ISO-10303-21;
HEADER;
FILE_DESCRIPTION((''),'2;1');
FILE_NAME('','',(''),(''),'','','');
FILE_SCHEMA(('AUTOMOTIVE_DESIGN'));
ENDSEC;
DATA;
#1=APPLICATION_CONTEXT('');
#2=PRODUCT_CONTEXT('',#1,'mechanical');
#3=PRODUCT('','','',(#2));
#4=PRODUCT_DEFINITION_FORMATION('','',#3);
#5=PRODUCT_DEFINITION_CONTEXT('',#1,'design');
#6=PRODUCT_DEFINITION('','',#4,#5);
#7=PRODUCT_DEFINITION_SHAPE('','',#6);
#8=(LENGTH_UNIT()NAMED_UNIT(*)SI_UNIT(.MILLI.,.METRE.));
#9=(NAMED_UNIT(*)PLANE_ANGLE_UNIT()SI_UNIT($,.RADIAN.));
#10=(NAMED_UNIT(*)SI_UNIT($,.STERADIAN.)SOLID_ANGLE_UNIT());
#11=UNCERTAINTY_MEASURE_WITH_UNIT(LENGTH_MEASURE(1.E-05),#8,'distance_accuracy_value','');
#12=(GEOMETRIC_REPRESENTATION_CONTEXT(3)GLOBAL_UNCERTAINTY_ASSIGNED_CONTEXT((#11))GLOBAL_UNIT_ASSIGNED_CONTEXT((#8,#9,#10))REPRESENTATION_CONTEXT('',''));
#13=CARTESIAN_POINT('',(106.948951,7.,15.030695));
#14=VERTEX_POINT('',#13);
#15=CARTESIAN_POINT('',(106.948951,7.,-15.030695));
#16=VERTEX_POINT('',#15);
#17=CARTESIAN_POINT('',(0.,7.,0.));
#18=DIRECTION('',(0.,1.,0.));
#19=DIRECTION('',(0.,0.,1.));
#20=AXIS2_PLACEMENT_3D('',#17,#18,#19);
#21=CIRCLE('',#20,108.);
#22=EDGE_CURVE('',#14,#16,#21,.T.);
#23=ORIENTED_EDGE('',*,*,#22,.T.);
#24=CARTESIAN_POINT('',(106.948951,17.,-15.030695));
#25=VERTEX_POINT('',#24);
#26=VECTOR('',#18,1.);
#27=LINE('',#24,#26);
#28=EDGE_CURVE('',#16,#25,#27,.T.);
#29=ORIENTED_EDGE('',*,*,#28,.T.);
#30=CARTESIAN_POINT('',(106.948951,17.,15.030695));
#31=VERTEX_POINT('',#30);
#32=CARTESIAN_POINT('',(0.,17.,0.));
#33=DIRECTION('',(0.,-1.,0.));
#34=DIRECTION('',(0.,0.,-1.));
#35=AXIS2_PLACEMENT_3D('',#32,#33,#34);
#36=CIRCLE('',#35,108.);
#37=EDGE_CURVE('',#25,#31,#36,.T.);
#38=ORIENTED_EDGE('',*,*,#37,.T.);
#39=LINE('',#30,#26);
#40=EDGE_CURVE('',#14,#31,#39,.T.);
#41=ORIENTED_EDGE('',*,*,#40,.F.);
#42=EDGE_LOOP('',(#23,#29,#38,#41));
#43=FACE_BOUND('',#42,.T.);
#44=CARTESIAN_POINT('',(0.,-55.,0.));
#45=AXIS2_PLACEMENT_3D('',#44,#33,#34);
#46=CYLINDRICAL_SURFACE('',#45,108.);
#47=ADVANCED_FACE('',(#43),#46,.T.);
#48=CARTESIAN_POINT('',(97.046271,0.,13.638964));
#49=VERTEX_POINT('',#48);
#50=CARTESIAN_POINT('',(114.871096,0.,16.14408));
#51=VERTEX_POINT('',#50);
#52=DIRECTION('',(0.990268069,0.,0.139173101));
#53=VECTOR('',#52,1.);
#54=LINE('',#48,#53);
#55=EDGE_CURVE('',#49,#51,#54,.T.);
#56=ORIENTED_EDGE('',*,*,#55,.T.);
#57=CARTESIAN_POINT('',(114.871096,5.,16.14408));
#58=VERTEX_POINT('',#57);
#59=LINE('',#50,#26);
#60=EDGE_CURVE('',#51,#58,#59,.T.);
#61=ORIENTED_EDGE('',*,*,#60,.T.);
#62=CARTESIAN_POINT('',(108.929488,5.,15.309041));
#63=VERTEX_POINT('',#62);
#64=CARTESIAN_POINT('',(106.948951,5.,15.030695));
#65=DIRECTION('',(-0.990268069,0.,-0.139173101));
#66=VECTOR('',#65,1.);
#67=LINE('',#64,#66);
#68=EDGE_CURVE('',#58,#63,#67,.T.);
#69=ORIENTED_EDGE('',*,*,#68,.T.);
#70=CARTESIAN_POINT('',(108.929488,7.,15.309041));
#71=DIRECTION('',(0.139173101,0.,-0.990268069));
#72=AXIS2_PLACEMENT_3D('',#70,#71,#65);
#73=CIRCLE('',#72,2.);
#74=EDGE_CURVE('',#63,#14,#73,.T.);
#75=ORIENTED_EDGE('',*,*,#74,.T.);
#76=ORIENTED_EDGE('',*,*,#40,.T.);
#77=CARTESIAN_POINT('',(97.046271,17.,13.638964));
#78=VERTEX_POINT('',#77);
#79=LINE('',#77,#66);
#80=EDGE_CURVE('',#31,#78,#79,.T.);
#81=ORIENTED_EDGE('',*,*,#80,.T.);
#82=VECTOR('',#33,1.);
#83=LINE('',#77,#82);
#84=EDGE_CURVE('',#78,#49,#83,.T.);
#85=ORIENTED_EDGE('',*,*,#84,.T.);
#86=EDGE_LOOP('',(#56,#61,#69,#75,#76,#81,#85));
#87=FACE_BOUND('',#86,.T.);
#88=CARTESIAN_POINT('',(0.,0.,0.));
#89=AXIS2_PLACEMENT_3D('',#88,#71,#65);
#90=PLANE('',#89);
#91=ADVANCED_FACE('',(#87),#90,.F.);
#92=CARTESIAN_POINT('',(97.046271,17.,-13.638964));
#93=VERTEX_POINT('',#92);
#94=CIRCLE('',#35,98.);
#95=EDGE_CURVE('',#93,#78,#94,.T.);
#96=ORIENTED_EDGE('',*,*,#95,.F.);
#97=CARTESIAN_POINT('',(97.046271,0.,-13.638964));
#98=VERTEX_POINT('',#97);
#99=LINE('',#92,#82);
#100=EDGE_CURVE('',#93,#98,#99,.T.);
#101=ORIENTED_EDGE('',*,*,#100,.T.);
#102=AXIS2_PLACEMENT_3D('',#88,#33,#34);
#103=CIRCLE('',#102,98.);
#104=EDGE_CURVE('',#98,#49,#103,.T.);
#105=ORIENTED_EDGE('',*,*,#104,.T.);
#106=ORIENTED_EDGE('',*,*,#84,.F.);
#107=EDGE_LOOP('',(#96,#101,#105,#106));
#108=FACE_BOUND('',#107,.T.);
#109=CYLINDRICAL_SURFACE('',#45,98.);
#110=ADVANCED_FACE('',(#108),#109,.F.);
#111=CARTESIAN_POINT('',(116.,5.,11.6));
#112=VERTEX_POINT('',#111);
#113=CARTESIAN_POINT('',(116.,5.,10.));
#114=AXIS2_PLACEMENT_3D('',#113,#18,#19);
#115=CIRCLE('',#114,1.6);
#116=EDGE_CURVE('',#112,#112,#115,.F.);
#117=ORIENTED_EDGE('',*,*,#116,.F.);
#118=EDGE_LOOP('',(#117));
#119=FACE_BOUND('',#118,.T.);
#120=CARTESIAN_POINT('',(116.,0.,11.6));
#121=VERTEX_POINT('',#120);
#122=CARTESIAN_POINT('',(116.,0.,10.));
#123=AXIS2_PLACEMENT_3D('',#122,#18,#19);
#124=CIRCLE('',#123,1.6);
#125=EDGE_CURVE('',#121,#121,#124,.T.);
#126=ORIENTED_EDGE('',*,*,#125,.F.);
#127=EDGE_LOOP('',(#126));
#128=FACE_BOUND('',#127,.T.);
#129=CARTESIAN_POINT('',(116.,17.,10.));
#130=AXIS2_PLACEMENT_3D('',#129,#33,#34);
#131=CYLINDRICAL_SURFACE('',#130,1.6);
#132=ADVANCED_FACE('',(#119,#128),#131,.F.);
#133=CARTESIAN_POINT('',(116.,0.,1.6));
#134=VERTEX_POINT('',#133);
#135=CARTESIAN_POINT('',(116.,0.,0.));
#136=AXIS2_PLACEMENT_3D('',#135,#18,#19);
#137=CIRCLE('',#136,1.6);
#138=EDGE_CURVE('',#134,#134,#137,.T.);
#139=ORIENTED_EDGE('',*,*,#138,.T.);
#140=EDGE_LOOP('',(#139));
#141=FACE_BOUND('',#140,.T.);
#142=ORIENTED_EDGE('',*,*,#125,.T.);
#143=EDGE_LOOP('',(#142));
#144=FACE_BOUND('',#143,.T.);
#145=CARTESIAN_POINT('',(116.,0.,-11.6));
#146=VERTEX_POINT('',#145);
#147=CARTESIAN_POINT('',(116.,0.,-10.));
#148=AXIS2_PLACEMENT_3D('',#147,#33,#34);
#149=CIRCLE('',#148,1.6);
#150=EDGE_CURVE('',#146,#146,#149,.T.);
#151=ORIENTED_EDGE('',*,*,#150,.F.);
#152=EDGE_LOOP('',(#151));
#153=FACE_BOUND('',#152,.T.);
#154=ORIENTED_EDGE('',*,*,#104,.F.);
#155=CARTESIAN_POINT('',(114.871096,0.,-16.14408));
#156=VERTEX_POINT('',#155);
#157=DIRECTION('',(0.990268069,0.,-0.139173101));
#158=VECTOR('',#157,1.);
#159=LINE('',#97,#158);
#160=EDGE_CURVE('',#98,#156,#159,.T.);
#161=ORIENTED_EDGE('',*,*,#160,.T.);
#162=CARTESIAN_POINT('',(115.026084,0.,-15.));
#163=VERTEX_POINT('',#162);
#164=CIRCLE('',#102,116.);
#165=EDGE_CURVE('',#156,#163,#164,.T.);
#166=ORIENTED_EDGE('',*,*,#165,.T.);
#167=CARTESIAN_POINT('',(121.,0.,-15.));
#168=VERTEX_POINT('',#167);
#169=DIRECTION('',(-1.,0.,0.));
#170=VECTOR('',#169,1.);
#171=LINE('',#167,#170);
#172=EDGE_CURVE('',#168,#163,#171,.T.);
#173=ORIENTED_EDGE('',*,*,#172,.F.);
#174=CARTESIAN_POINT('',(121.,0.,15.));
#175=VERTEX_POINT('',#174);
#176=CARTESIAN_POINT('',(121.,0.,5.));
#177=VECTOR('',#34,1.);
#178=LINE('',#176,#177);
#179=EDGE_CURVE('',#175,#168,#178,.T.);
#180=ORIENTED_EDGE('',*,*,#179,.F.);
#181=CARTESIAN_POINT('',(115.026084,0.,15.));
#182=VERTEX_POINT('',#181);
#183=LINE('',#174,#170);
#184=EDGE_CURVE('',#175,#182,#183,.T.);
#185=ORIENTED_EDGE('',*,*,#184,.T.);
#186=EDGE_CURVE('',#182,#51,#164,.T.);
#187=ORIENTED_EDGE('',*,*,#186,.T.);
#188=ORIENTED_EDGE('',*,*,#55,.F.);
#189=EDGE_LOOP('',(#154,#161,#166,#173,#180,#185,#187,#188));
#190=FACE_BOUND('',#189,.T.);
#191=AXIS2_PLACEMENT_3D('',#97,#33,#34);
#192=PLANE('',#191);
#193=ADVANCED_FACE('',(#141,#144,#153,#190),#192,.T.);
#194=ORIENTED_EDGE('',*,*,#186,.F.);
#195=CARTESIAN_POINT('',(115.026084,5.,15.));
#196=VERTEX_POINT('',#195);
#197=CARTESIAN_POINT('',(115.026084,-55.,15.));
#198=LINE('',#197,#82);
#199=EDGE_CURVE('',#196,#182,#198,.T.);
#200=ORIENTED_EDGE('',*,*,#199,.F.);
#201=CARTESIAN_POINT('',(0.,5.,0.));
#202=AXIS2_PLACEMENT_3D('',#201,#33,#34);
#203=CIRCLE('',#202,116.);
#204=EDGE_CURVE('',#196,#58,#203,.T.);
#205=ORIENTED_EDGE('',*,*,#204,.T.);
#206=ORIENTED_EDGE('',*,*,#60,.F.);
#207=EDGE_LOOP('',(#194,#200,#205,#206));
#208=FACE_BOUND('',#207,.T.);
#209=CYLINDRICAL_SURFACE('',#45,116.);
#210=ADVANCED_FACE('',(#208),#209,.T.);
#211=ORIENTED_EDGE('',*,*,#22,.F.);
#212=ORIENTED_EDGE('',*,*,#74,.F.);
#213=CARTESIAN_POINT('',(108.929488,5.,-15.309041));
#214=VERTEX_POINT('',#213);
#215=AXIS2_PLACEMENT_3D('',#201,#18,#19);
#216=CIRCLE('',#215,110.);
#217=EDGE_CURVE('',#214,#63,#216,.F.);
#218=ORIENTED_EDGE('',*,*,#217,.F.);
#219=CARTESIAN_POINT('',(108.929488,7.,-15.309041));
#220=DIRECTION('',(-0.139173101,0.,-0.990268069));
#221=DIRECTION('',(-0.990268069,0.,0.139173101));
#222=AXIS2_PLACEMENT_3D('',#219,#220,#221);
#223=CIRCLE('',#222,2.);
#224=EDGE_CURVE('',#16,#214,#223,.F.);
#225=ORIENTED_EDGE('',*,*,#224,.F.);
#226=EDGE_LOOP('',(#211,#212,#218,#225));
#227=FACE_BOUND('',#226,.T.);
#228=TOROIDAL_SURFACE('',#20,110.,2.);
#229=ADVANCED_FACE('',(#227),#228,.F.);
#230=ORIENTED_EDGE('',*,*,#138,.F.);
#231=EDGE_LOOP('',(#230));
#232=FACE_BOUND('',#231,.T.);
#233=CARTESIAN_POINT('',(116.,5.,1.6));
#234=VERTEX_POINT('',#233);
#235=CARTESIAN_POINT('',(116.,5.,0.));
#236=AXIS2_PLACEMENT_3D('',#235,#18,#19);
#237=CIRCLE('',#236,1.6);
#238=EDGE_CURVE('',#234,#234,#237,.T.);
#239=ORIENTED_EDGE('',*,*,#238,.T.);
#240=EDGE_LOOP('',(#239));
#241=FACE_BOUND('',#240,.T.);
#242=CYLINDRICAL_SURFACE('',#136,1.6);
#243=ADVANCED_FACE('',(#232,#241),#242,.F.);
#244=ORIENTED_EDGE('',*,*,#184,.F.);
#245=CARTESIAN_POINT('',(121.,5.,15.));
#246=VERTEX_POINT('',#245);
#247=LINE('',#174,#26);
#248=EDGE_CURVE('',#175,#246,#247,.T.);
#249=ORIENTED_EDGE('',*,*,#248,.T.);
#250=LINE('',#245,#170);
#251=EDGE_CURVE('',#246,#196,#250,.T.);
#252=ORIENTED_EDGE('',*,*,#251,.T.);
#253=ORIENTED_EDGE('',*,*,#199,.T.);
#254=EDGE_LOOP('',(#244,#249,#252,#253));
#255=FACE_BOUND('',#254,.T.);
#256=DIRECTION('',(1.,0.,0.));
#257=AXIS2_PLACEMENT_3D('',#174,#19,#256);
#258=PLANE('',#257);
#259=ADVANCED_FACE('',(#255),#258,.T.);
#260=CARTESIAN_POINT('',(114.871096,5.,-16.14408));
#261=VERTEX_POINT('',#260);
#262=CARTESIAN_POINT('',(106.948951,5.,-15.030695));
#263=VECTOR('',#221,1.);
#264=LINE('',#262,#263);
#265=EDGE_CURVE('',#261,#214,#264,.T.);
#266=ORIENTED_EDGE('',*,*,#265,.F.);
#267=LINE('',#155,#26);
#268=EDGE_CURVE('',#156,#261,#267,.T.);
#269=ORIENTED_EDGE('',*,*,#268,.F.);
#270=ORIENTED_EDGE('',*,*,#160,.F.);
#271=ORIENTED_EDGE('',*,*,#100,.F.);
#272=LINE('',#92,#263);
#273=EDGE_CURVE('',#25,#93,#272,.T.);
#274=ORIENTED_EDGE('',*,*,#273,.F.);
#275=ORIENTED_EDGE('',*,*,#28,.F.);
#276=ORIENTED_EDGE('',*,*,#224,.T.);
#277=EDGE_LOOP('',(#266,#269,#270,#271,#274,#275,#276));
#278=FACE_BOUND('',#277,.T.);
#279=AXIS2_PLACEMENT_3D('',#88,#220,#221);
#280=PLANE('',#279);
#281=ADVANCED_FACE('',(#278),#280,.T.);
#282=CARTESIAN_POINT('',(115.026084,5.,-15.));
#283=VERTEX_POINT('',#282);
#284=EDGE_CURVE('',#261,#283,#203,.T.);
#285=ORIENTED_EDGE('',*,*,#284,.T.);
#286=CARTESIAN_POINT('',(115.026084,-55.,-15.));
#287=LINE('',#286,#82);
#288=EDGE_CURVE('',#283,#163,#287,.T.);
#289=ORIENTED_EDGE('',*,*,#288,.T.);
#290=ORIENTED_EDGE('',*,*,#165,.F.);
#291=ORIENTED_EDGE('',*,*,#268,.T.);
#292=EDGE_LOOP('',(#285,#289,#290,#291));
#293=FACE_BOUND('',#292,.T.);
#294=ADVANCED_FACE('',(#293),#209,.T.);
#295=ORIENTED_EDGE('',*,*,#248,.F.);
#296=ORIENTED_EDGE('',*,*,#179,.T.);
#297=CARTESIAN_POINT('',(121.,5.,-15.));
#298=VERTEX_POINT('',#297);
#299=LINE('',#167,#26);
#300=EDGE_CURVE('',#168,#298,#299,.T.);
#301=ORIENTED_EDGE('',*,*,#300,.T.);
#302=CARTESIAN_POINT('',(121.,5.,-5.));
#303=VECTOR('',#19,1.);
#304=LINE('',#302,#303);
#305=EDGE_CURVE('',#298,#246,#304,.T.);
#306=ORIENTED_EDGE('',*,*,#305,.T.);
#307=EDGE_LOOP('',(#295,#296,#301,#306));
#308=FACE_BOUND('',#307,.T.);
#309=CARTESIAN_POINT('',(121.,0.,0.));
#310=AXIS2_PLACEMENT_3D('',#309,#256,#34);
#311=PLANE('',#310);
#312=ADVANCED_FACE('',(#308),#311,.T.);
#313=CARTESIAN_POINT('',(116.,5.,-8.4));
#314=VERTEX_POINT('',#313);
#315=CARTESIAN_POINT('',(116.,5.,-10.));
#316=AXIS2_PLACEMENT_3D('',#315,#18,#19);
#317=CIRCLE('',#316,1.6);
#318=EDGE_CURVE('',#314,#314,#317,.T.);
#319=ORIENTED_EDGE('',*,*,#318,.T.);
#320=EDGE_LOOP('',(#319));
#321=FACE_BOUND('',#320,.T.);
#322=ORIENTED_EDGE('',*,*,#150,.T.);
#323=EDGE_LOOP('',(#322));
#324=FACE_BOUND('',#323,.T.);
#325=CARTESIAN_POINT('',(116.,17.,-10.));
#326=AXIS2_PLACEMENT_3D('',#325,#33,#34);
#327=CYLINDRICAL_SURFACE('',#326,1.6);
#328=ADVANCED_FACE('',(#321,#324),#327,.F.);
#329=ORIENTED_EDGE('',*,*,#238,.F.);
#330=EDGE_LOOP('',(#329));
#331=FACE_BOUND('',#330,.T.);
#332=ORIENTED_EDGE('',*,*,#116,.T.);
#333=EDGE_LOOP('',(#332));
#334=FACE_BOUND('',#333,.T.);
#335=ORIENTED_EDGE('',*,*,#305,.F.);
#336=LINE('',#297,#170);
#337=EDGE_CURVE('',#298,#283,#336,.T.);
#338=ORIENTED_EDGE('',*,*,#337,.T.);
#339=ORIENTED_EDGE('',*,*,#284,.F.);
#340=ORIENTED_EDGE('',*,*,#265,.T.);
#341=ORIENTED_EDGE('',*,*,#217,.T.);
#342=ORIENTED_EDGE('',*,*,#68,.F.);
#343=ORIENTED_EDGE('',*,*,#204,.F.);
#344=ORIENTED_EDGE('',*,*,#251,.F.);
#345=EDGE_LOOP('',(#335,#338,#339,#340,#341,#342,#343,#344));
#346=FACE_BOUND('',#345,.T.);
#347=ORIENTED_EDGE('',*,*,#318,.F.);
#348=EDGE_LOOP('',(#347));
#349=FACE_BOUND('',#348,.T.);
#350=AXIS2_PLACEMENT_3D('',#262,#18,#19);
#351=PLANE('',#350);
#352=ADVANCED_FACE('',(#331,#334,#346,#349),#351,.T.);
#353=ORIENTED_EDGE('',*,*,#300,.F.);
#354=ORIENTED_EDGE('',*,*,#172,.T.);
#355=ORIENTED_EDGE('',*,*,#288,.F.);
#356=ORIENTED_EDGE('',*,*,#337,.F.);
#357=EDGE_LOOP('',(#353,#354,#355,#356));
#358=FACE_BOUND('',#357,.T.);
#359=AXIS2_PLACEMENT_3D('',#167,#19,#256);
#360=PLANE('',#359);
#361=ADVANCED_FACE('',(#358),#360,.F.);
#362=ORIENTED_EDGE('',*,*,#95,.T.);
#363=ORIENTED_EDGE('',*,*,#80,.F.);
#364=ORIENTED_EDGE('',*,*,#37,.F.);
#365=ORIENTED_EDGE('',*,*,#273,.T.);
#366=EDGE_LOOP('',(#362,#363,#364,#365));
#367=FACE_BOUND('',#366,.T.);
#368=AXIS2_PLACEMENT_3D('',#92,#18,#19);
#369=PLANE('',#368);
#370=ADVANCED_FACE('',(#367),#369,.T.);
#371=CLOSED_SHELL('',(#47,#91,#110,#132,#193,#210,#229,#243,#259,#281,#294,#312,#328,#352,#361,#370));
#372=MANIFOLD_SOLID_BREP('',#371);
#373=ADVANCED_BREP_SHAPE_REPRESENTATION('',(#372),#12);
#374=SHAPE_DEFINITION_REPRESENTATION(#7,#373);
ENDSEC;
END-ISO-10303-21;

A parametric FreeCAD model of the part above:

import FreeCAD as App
import Part
import Sketcher

V = App.Vector


def edges_at(feature, points):
    """Names of the edges that pass closest to the given points."""
    edges = feature.Shape.Edges
    near = lambda p: min(range(len(edges)), key=lambda i: edges[i].distToShape(Part.Vertex(*p))[0])
    return sorted({f"Edge{near(p) + 1}" for p in points})


def add_polygon(sketch, points):
    """Adds a closed chain of lines whose ends are joined by coincident constraints."""
    first, n = sketch.GeometryCount, len(points)
    for a, b in zip(points, points[1:] + points[:1]):
        sketch.addGeometry(Part.LineSegment(App.Vector(*a, 0), App.Vector(*b, 0)), False)
    for i in range(n):
        sketch.addConstraint(Sketcher.Constraint("Coincident", first + i, 2, first + (i + 1) % n, 1))

doc = App.newDocument("Part")
body = doc.addObject("PartDesign::Body", "Body")

sketch1 = body.newObject("Sketcher::SketchObject", "Sketch")
sketch1.AttachmentSupport = (doc.getObject("XY_Plane"), [""])
sketch1.MapMode = "FlatFace"
add_polygon(sketch1, [(98, 17), (98, 0), (116, 0), (116, 5), (108, 5), (108, 17)])
sketch1.addConstraint([
    Sketcher.Constraint("Vertical", 0),
    Sketcher.Constraint("Horizontal", 1),
    Sketcher.Constraint("Vertical", 2),
    Sketcher.Constraint("Horizontal", 3),
    Sketcher.Constraint("Vertical", 4),
    Sketcher.Constraint("Horizontal", 5),
    Sketcher.Constraint("PointOnObject", 0, 2, -1),
    Sketcher.Constraint("DistanceX", 1, 1, 1, 2, 18.0),
    Sketcher.Constraint("DistanceX", 3, 2, 3, 1, 8.0),
    Sketcher.Constraint("DistanceY", 0, 2, 0, 1, 17.0),
    Sketcher.Constraint("DistanceY", 2, 1, 2, 2, 5.0),
    Sketcher.Constraint("DistanceX", -1, 1, 0, 2, 98.0),
])
revolution = body.newObject("PartDesign::Revolution", "Revolution")
revolution.Profile = sketch1
revolution.ReferenceAxis = (sketch1, ["V_Axis"])
revolution.Angle = 8

sketch2 = body.newObject("Sketcher::SketchObject", "Sketch001")
sketch2.AttachmentSupport = (doc.getObject("XY_Plane"), [""])
sketch2.MapMode = "FlatFace"
add_polygon(sketch2, [(98, 17), (98, 0), (116, 0), (116, 5), (108, 5), (108, 17)])
sketch2.addConstraint([
    Sketcher.Constraint("Vertical", 0),
    Sketcher.Constraint("Horizontal", 1),
    Sketcher.Constraint("Vertical", 2),
    Sketcher.Constraint("Horizontal", 3),
    Sketcher.Constraint("Vertical", 4),
    Sketcher.Constraint("Horizontal", 5),
    Sketcher.Constraint("PointOnObject", 0, 2, -1),
    Sketcher.Constraint("DistanceX", 1, 1, 1, 2, 18.0),
    Sketcher.Constraint("DistanceX", 3, 2, 3, 1, 8.0),
    Sketcher.Constraint("DistanceY", 0, 2, 0, 1, 17.0),
    Sketcher.Constraint("DistanceY", 2, 1, 2, 2, 5.0),
    Sketcher.Constraint("DistanceX", -1, 1, 0, 2, 98.0),
])
revolution2 = body.newObject("PartDesign::Revolution", "Revolution001")
revolution2.Profile = sketch2
revolution2.ReferenceAxis = (sketch2, ["V_Axis"])
revolution2.Angle = 8
revolution2.Reversed = True

sketch3 = body.newObject("Sketcher::SketchObject", "Sketch002")
sketch3.AttachmentSupport = (doc.getObject("YZ_Plane"), [""])
sketch3.MapMode = "FlatFace"
sketch3.AttachmentOffset = App.Placement(V(0, 0, 111), App.Rotation())
add_polygon(sketch3, [(5, 5), (0, 5), (0, -5), (5, -5)])
sketch3.addConstraint([
    Sketcher.Constraint("Horizontal", 0),
    Sketcher.Constraint("Vertical", 1),
    Sketcher.Constraint("Horizontal", 2),
    Sketcher.Constraint("Vertical", 3),
    Sketcher.Constraint("Symmetric", 0, 2, 1, 2, -1, 1),
    Sketcher.Constraint("DistanceX", 0, 2, 0, 1, 5.0),
    Sketcher.Constraint("DistanceY", 1, 2, 1, 1, 10.0),
])
pad1 = body.newObject("PartDesign::Pad", "Pad")
pad1.Profile = sketch3
pad1.Length = 10

sketch4 = body.newObject("Sketcher::SketchObject", "Sketch003")
sketch4.AttachmentSupport = (doc.getObject("XZ_Plane"), [""])
sketch4.MapMode = "FlatFace"
sketch4.addGeometry(Part.Circle(V(116, 0, 0), V(0, 0, 1), 1.6), False)
sketch4.addConstraint([
    Sketcher.Constraint("PointOnObject", 0, 3, -1),
    Sketcher.Constraint("Diameter", 0, 3.2),
    Sketcher.Constraint("DistanceX", -1, 1, 0, 3, 116.0),
])
pocket1 = body.newObject("PartDesign::Pocket", "Pocket")
pocket1.Profile = sketch4
pocket1.Type = "ThroughAll"
doc.recompute()

linearpattern = body.newObject("PartDesign::LinearPattern", "LinearPattern")
linearpattern.Originals = [pad1, pocket1]
linearpattern.Direction = (doc.getObject("Z_Axis"), [""])
linearpattern.Mode = "offset"
linearpattern.Offset = 10
linearpattern.Occurrences = 2
linearpattern.Reversed = True
body.Tip = linearpattern
doc.recompute()

mirrored = body.newObject("PartDesign::Mirrored", "Mirrored")
mirrored.Originals = [pocket1]
mirrored.MirrorPlane = (doc.getObject("XY_Plane"), [""])
body.Tip = mirrored

sketch5 = body.newObject("Sketcher::SketchObject", "Sketch004")
sketch5.AttachmentSupport = (doc.getObject("YZ_Plane"), [""])
sketch5.MapMode = "FlatFace"
sketch5.AttachmentOffset = App.Placement(V(0, 0, 111), App.Rotation())
add_polygon(sketch5, [(0, 5), (5, 5), (5, 15), (0, 15)])
sketch5.addConstraint([
    Sketcher.Constraint("Horizontal", 0),
    Sketcher.Constraint("Vertical", 1),
    Sketcher.Constraint("Horizontal", 2),
    Sketcher.Constraint("Vertical", 3),
    Sketcher.Constraint("PointOnObject", 2, 2, -2),
    Sketcher.Constraint("DistanceX", 0, 1, 0, 2, 5.0),
    Sketcher.Constraint("DistanceY", 1, 1, 1, 2, 10.0),
    Sketcher.Constraint("DistanceY", -1, 1, 0, 2, 5.0),
])
pad2 = body.newObject("PartDesign::Pad", "Pad001")
pad2.Profile = sketch5
pad2.Length = 10

sketch6 = body.newObject("Sketcher::SketchObject", "Sketch005")
sketch6.AttachmentSupport = (doc.getObject("XZ_Plane"), [""])
sketch6.MapMode = "FlatFace"
sketch6.addGeometry(Part.Circle(V(116, 10, 0), V(0, 0, 1), 1.6), False)
sketch6.addConstraint([
    Sketcher.Constraint("Diameter", 0, 3.2),
    Sketcher.Constraint("DistanceX", -1, 1, 0, 3, 116.0),
    Sketcher.Constraint("DistanceY", -1, 1, 0, 3, 10.0),
])
pocket2 = body.newObject("PartDesign::Pocket", "Pocket001")
pocket2.Profile = sketch6
pocket2.Type = "ThroughAll"

sketch7 = body.newObject("Sketcher::SketchObject", "Sketch006")
sketch7.AttachmentSupport = (doc.getObject("YZ_Plane"), [""])
sketch7.MapMode = "FlatFace"
sketch7.AttachmentOffset = App.Placement(V(0, 0, 111), App.Rotation())
add_polygon(sketch7, [(0, -5), (5, -5), (5, 5), (0, 5)])
sketch7.addConstraint([
    Sketcher.Constraint("Horizontal", 0),
    Sketcher.Constraint("Vertical", 1),
    Sketcher.Constraint("Horizontal", 2),
    Sketcher.Constraint("Vertical", 3),
    Sketcher.Constraint("Symmetric", 2, 2, 3, 2, -1, 1),
    Sketcher.Constraint("DistanceX", 0, 1, 0, 2, 5.0),
    Sketcher.Constraint("DistanceY", 1, 1, 1, 2, 10.0),
])
pad3 = body.newObject("PartDesign::Pad", "Pad002")
pad3.Profile = sketch7
pad3.Length = 10
doc.recompute()

fillet = body.newObject("PartDesign::Fillet", "Fillet")
fillet.Base = (pad3, edges_at(pad3, [(108, 5, 0)]))
fillet.Radius = 2

sketch8 = body.newObject("Sketcher::SketchObject", "Sketch007")
sketch8.AttachmentSupport = (doc.getObject("XZ_Plane"), [""])
sketch8.MapMode = "FlatFace"
sketch8.AttachmentOffset = App.Placement(V(0, 0, -5), App.Rotation())
sketch8.addGeometry(Part.Circle(V(116, 0, 0), V(0, 0, 1), 1.6), False)
sketch8.addConstraint([
    Sketcher.Constraint("PointOnObject", 0, 3, -1),
    Sketcher.Constraint("Diameter", 0, 3.2),
    Sketcher.Constraint("DistanceX", -1, 1, 0, 3, 116.0),
])
pocket3 = body.newObject("PartDesign::Pocket", "Pocket002")
pocket3.Profile = sketch8
pocket3.Type = "ThroughAll"
pocket3.Reversed = True

doc.recompute()
